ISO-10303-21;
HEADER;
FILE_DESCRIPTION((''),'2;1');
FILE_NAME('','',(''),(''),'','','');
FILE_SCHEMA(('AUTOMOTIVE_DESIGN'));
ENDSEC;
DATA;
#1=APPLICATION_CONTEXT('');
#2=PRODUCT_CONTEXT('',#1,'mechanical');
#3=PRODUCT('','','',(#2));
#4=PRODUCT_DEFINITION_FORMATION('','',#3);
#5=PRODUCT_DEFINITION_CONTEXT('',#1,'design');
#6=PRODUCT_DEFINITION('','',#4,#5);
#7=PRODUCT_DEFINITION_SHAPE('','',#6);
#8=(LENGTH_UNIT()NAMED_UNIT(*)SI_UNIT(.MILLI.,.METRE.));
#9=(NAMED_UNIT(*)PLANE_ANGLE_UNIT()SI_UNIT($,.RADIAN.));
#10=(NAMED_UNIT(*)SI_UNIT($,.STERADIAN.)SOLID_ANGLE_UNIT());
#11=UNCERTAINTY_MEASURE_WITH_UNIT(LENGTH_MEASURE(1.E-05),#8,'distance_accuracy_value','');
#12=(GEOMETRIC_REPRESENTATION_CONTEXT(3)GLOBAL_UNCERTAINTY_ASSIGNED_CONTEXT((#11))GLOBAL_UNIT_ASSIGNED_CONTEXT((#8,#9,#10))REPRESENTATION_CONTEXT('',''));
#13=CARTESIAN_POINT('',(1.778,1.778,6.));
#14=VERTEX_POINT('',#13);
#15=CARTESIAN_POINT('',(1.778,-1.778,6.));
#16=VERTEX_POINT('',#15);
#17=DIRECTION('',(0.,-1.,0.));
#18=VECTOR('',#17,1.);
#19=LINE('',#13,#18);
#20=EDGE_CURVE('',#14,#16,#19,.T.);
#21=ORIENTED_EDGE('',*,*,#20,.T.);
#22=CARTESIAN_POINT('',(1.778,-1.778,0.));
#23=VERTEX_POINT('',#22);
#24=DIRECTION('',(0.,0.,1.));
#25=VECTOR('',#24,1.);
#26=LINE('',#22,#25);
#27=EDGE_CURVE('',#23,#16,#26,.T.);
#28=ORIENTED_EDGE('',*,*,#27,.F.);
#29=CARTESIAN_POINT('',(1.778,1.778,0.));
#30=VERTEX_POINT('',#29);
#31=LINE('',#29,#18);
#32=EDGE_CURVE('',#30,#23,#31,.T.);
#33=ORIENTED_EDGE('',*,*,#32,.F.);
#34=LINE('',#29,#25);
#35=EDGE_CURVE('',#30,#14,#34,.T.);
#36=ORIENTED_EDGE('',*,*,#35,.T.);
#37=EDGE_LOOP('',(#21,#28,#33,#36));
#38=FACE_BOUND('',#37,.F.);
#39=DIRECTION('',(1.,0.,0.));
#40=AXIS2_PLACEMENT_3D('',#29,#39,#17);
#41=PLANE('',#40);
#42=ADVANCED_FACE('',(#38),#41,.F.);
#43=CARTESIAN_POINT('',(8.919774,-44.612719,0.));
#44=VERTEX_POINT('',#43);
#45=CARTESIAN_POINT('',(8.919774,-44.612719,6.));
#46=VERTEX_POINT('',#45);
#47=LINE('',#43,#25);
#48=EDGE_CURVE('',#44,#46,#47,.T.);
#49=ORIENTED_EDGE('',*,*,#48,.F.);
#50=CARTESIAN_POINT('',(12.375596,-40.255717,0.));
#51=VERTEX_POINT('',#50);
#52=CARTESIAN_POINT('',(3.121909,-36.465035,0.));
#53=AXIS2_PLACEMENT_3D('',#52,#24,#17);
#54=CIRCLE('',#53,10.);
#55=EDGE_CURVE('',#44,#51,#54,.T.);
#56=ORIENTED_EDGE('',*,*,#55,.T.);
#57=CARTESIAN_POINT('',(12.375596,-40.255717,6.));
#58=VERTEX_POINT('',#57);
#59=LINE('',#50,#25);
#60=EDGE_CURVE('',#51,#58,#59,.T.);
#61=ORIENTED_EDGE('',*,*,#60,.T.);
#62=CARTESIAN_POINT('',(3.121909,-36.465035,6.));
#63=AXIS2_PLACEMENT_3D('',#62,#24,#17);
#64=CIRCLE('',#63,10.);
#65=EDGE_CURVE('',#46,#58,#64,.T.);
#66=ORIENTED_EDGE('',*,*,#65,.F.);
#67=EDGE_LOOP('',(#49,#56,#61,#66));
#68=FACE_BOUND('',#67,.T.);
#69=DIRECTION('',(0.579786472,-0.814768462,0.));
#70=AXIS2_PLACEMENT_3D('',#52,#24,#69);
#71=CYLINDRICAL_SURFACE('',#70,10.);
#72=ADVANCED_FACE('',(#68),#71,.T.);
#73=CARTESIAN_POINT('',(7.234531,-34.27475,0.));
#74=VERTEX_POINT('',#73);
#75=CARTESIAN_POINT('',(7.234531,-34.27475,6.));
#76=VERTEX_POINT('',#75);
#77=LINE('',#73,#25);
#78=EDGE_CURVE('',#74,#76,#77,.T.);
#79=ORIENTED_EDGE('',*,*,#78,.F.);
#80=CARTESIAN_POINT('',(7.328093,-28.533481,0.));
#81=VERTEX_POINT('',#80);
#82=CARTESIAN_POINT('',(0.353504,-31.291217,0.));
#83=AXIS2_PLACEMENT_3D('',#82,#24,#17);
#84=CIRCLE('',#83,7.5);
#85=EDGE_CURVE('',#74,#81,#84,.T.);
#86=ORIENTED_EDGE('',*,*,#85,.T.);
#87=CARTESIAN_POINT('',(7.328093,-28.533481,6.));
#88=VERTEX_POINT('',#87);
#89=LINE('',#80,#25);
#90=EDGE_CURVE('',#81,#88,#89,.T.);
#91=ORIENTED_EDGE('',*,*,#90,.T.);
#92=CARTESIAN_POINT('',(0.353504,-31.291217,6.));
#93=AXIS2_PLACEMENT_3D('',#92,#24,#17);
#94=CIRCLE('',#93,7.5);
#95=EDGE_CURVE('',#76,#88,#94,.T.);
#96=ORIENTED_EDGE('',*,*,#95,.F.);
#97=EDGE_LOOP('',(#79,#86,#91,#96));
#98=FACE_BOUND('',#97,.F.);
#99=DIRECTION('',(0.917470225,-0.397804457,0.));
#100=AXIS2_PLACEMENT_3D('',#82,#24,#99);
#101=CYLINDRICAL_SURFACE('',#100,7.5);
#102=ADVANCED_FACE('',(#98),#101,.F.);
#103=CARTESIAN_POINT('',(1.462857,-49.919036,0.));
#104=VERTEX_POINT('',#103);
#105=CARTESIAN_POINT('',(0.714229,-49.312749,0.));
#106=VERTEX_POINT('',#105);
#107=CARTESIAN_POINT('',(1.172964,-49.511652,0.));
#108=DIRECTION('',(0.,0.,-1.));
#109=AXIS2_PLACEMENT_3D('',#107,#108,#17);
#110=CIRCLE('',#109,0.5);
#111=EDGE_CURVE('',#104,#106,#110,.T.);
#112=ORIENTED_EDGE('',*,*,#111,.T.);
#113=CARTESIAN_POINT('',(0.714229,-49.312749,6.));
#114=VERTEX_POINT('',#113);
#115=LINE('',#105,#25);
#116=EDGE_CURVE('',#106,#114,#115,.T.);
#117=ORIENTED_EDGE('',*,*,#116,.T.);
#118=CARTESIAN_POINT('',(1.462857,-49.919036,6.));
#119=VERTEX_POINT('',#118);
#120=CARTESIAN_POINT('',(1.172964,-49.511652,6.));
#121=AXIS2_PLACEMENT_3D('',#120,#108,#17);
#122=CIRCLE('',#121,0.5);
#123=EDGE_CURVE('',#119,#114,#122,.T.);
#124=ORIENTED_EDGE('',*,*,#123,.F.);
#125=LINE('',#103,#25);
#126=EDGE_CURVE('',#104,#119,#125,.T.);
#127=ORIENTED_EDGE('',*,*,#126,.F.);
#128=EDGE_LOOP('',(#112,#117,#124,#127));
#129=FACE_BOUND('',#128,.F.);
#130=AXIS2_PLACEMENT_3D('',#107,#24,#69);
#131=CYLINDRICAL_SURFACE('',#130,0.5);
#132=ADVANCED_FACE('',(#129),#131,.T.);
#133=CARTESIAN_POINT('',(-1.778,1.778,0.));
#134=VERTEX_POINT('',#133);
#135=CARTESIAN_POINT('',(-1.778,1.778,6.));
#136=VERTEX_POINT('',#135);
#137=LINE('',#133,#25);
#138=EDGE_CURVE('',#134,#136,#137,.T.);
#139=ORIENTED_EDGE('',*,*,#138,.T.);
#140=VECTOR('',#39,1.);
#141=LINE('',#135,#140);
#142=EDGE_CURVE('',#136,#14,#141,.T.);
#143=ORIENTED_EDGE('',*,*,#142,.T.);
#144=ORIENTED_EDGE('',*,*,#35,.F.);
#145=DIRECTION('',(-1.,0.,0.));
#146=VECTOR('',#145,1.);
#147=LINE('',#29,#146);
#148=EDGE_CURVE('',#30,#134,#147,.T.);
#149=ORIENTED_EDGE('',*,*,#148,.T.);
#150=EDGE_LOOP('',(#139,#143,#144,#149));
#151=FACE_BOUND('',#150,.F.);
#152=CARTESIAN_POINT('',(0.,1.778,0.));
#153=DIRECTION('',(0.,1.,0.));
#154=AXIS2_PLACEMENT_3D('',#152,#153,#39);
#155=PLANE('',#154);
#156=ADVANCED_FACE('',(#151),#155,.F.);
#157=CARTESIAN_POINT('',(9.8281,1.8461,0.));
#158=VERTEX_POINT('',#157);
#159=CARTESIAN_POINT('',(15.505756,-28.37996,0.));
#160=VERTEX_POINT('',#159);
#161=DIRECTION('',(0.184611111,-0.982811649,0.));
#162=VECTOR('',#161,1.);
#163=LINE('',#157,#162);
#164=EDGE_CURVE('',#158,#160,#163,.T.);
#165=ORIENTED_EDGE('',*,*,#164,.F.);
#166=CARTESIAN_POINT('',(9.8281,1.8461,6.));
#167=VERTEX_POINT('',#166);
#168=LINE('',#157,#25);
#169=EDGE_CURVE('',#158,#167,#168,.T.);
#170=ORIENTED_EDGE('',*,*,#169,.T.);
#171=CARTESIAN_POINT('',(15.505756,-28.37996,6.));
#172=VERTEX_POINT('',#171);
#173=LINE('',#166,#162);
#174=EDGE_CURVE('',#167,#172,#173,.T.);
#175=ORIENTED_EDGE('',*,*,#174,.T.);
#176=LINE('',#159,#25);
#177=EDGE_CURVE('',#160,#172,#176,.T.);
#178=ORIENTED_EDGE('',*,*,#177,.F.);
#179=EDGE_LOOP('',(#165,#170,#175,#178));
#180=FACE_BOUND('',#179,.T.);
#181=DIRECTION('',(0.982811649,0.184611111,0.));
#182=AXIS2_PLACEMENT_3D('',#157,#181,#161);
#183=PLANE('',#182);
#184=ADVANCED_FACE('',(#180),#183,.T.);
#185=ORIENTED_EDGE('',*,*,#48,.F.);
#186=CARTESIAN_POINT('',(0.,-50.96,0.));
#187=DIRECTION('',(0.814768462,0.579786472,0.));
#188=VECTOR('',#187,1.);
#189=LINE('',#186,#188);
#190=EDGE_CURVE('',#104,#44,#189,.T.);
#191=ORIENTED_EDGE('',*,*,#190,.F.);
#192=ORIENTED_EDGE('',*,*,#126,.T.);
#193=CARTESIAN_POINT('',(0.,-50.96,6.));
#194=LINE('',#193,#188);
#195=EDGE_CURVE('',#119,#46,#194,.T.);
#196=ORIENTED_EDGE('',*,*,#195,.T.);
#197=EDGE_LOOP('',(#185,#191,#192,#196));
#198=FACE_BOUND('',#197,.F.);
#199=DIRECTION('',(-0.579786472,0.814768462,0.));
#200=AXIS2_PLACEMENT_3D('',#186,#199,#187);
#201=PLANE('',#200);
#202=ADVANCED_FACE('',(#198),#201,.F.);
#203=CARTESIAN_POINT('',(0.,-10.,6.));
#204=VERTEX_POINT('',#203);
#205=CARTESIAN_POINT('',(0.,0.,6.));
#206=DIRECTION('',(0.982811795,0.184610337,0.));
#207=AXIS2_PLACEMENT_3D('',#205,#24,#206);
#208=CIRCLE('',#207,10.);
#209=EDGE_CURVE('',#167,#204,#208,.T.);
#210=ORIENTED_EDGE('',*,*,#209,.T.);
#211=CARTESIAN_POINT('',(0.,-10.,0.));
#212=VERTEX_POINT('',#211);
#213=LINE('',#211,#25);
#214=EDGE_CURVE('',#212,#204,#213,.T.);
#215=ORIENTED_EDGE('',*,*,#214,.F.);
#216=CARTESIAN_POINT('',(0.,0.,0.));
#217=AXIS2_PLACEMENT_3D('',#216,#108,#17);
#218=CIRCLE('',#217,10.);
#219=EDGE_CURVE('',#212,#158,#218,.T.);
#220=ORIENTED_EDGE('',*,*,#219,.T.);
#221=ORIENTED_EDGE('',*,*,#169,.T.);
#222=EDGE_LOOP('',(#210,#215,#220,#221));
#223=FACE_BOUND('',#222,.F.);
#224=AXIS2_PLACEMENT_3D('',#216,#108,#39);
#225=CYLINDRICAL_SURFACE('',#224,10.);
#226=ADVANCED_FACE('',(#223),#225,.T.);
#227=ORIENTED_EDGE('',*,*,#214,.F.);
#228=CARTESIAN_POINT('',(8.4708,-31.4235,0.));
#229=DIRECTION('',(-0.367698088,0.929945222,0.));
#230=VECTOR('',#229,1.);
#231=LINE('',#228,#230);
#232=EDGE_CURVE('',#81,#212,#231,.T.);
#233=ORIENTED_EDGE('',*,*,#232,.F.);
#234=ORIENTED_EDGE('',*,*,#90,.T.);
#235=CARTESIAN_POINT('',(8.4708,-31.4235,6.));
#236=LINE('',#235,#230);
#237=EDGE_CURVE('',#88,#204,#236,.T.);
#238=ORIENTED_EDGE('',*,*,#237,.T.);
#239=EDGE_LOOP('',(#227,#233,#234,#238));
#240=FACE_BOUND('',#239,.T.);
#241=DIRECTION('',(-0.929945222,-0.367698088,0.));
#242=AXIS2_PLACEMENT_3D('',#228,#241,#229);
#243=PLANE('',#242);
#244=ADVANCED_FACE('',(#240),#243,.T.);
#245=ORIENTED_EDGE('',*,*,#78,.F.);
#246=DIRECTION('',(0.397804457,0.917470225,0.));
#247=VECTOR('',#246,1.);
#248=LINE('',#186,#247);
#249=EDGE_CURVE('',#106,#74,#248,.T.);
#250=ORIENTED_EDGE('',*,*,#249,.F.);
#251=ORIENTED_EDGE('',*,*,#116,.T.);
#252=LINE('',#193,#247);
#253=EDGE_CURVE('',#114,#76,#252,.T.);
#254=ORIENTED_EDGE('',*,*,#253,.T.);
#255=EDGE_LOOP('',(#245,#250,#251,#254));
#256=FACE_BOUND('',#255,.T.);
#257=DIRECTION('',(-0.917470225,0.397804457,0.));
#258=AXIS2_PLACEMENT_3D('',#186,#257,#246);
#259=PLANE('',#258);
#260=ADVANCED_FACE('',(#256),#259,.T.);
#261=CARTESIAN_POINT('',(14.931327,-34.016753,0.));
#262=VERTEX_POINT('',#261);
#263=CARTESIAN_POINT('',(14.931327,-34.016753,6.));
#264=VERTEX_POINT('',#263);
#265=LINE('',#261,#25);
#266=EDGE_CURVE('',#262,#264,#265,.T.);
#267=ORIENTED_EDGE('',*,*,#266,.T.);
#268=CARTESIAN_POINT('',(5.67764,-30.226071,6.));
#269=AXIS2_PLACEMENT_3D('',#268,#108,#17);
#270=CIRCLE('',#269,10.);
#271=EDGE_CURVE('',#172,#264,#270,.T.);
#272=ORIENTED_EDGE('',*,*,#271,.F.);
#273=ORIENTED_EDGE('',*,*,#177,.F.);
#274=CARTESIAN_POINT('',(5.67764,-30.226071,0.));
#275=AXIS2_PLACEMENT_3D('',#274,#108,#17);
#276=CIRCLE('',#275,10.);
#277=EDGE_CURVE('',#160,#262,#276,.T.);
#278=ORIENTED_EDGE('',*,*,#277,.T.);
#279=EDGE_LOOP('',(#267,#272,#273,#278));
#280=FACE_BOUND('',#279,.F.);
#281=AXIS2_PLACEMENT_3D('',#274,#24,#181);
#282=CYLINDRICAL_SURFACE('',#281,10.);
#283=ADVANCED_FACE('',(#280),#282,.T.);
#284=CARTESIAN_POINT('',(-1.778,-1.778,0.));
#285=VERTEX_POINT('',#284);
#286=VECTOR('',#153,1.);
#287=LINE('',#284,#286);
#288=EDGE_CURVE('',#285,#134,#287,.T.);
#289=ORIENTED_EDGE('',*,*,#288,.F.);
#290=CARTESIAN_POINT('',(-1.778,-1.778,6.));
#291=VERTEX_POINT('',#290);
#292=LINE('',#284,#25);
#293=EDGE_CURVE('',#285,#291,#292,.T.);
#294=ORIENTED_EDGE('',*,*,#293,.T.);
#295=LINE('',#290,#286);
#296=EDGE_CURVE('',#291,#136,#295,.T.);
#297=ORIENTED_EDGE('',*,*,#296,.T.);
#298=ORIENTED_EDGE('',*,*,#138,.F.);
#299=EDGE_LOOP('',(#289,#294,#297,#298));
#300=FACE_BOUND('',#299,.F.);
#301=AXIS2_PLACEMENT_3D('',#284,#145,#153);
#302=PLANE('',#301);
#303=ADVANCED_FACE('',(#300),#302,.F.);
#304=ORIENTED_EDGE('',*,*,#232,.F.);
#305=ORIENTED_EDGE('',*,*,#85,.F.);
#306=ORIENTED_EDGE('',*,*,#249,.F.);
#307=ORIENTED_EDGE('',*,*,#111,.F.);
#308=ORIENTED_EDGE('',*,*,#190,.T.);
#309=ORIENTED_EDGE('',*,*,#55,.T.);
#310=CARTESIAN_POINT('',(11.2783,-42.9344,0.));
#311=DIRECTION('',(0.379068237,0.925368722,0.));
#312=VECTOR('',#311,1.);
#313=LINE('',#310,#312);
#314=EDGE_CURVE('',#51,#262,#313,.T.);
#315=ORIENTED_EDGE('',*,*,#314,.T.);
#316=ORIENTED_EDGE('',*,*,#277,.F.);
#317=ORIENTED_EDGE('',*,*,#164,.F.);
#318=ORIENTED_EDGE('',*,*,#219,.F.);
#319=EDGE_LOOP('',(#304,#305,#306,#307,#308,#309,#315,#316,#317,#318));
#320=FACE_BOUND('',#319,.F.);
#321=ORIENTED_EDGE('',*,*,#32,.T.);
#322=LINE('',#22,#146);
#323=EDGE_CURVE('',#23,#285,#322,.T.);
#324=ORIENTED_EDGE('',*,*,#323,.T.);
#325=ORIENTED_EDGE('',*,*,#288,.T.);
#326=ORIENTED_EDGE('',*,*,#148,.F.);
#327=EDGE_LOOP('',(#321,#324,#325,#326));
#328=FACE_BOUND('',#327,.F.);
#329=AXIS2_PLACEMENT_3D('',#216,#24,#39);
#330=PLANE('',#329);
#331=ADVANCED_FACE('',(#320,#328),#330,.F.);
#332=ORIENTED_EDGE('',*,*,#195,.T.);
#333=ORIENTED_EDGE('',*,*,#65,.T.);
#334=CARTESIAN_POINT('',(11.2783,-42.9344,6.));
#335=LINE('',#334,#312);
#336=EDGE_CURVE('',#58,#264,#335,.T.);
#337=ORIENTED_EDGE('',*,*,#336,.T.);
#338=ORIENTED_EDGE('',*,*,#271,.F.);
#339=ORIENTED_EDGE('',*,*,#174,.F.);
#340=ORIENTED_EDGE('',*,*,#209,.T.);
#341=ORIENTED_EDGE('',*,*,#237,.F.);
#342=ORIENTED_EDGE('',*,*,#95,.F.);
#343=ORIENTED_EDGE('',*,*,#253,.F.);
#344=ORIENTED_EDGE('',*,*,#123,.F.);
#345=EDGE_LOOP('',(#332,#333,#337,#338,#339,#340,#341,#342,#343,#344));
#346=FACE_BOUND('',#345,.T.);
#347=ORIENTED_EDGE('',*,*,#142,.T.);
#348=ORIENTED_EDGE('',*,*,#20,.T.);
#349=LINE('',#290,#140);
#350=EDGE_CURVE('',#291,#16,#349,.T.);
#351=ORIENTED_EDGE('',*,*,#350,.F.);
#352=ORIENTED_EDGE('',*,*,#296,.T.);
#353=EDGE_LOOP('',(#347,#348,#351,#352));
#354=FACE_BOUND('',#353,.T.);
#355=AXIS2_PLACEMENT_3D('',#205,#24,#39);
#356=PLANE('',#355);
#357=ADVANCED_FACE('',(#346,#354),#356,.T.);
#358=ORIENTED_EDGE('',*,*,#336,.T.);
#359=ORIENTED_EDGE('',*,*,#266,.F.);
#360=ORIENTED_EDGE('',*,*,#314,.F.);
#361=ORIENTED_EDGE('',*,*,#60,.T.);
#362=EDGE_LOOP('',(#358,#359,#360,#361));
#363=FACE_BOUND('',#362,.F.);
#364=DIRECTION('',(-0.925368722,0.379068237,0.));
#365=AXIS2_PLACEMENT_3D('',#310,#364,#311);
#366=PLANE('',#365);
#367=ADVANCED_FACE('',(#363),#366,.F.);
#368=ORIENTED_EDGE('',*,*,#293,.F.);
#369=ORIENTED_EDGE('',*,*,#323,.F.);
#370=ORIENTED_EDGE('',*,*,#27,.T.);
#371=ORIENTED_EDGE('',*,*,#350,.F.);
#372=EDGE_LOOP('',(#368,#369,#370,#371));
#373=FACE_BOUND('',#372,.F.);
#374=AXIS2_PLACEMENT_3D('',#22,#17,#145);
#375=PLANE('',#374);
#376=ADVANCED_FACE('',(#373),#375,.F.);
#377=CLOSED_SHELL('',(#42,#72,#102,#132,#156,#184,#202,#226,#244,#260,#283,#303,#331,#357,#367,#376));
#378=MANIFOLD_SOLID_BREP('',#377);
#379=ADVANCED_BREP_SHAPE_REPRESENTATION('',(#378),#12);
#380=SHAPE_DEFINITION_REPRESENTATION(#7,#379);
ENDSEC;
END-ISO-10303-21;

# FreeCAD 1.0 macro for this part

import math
import FreeCAD as App
import Part
import Sketcher


def edges_at(feature, points):
    """Names of the edges that pass closest to the given points."""
    edges = feature.Shape.Edges
    near = lambda p: min(range(len(edges)), key=lambda i: edges[i].distToShape(Part.Vertex(*p))[0])
    return sorted({f"Edge{near(p) + 1}" for p in points})

doc = App.newDocument("Part")
params = doc.addObject("Spreadsheet::Sheet", "Params")
for row, (alias, value) in enumerate([
    ("sketch1_radius", "10 mm"),
    ("pad1_length", "6 mm"),
    ("fillet_radius", "7.5 mm"),
    ("fillet2_radius", "10 mm"),
    ("fillet3_radius", "0.5 mm"),
], start=1):
    params.set(f"A{row}", alias)
    params.set(f"B{row}", "=" + value)
    params.setAlias(f"B{row}", alias)

body = doc.addObject("PartDesign::Body", "Body")

sketch1 = body.newObject("Sketcher::SketchObject", "Sketch")
sketch1.AttachmentSupport = (doc.getObject("XY_Plane"), [""])
sketch1.MapMode = "FlatFace"
sketch1.addGeometry(Part.ArcOfCircle(Part.Circle(App.Vector(0, 0, 0), App.Vector(0, 0, 1), 10), math.radians(10.638415), math.radians(270)), False)
sketch1.addGeometry(Part.LineSegment(App.Vector(0, -10, 0), App.Vector(8.4708, -31.4235, 0)), False)
sketch1.addGeometry(Part.LineSegment(App.Vector(8.4708, -31.4235, 0), App.Vector(0, -50.96, 0)), False)
sketch1.addGeometry(Part.LineSegment(App.Vector(0, -50.96, 0), App.Vector(11.2783, -42.9344, 0)), False)
sketch1.addGeometry(Part.LineSegment(App.Vector(11.2783, -42.9344, 0), App.Vector(16.0511, -31.2832, 0)), False)
sketch1.addGeometry(Part.LineSegment(App.Vector(16.0511, -31.2832, 0), App.Vector(9.8281, 1.8461, 0)), False)
sketch1.addGeometry(Part.LineSegment(App.Vector(1.778, -1.778, 0), App.Vector(-1.778, -1.778, 0)), False)
sketch1.addGeometry(Part.LineSegment(App.Vector(-1.778, -1.778, 0), App.Vector(-1.778, 1.778, 0)), False)
sketch1.addGeometry(Part.LineSegment(App.Vector(-1.778, 1.778, 0), App.Vector(1.778, 1.778, 0)), False)
sketch1.addGeometry(Part.LineSegment(App.Vector(1.778, 1.778, 0), App.Vector(1.778, -1.778, 0)), False)
sketch1.addConstraint(Sketcher.Constraint("Coincident", 0, 2, 1, 1))
sketch1.addConstraint(Sketcher.Constraint("Coincident", 1, 2, 2, 1))
sketch1.addConstraint(Sketcher.Constraint("Coincident", 2, 2, 3, 1))
sketch1.addConstraint(Sketcher.Constraint("Coincident", 3, 2, 4, 1))
sketch1.addConstraint(Sketcher.Constraint("Coincident", 4, 2, 5, 1))
sketch1.addConstraint(Sketcher.Constraint("Coincident", 5, 2, 0, 1))
sketch1.addConstraint(Sketcher.Constraint("Coincident", 6, 2, 7, 1))
sketch1.addConstraint(Sketcher.Constraint("Coincident", 7, 2, 8, 1))
sketch1.addConstraint(Sketcher.Constraint("Coincident", 8, 2, 9, 1))
sketch1.addConstraint(Sketcher.Constraint("Coincident", 9, 2, 6, 1))
sketch1.addConstraint(Sketcher.Constraint("Horizontal", 6))
sketch1.addConstraint(Sketcher.Constraint("Vertical", 7))
sketch1.addConstraint(Sketcher.Constraint("Horizontal", 8))
sketch1.addConstraint(Sketcher.Constraint("Vertical", 9))
sketch1.addConstraint(Sketcher.Constraint("Coincident", 0, 3, -1, 1))
sketch1.addConstraint(Sketcher.Constraint("PointOnObject", 0, 2, -2))
sketch1.addConstraint(Sketcher.Constraint("PointOnObject", 2, 2, -2))
sketch1.addConstraint(Sketcher.Constraint("Radius", 0, 10.0))
sketch1.addConstraint(Sketcher.Constraint("DistanceX", 6, 2, 6, 1, 3.556))
sketch1.addConstraint(Sketcher.Constraint("DistanceY", 7, 1, 7, 2, 3.556))
sketch1.addConstraint(Sketcher.Constraint("DistanceY", 2, 2, -1, 1, 50.96))
sketch1.addConstraint(Sketcher.Constraint("DistanceX", 8, 2, 5, 2, 8.05))
sketch1.addConstraint(Sketcher.Constraint("DistanceX", -1, 1, 4, 2, 16.051))
sketch1.addConstraint(Sketcher.Constraint("DistanceX", -1, 1, 5, 2, 9.828))
sketch1.addConstraint(Sketcher.Constraint("DistanceY", 6, 2, -1, 1, 1.778))
sketch1.addConstraint(Sketcher.Constraint("DistanceY", 3, 2, 1, 2, 11.511))
sketch1.addConstraint(Sketcher.Constraint("Distance", 1, 23.0374))
sketch1.addConstraint(Sketcher.Constraint("Distance", 2, 21.2939))
sketch1.addConstraint(Sketcher.Constraint("Distance", 3, 13.8423))
sketch1.addConstraint(Sketcher.Constraint("Distance", 4, 12.5909))
sketch1.setExpression("Constraints[17]", "Params.sketch1_radius")
pad1 = body.newObject("PartDesign::Pad", "Pad")
pad1.Profile = sketch1
pad1.setExpression("Length", "Params.pad1_length")
doc.recompute()

fillet = body.newObject("PartDesign::Fillet", "Fillet")
fillet.Base = (pad1, edges_at(pad1, [(8.471, -31.424, 3)]))
fillet.setExpression("Radius", "Params.fillet_radius")
doc.recompute()

fillet2 = body.newObject("PartDesign::Fillet", "Fillet001")
fillet2.Base = (fillet, edges_at(fillet, [(16.051, -31.283, 3), (11.278, -42.934, 3)]))
fillet2.setExpression("Radius", "Params.fillet2_radius")
doc.recompute()

fillet3 = body.newObject("PartDesign::Fillet", "Fillet002")
fillet3.Base = (fillet2, edges_at(fillet2, [(0, -50.96, 3)]))
fillet3.setExpression("Radius", "Params.fillet3_radius")

doc.recompute()
